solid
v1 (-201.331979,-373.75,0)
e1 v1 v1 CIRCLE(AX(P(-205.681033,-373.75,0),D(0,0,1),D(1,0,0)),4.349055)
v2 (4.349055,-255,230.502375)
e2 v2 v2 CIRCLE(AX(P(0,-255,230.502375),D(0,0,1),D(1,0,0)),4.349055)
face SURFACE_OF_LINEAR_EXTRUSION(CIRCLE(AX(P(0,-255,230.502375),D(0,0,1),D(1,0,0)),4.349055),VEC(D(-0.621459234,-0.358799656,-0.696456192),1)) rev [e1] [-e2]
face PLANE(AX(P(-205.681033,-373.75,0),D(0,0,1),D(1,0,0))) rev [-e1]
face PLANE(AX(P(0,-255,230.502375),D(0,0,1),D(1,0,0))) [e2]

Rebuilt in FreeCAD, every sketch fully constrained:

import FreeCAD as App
import Part
import Sketcher

doc = App.newDocument("Part")
body = doc.addObject("PartDesign::Body", "Body")

# Sketch on XY plane
sketch1 = body.newObject("Sketcher::SketchObject", "Sketch")
sketch1.AttachmentSupport = (doc.getObject("XY_Plane"), [""])
sketch1.MapMode = "FlatFace"
sketch1.addGeometry(Part.Circle(App.Vector(-205.681033, -373.75, 0), App.Vector(0, 0, 1), 4.349055), False)
sketch1.addConstraint([
    Sketcher.Constraint("Diameter", 0, 8.698109),
    Sketcher.Constraint("DistanceY", 0, 3, -1, 1, 373.75),
    Sketcher.Constraint("DistanceX", 0, 3, -1, 1, 205.681033),
])

# Sketch on an angled plane
sketch2 = body.newObject("Sketcher::SketchObject", "Sketch001")
sketch2.Placement = App.Placement(App.Vector(-114.507169, 0, 102.176617), App.Rotation(App.Vector(-0.665791211, 0, -0.746138099), App.Vector(0, 0.999999999, 0), App.Vector(0.746138099, 0, -0.665791211), "ZXY"))
sketch2.addGeometry(Part.LineSegment(App.Vector(-171.986604, -255, 0), App.Vector(136.940624, -373.75, 0)), False)
sketch2.addConstraint([
    Sketcher.Constraint("DistanceY", 0, 1, -1, 1, 255.0),
    Sketcher.Constraint("DistanceY", 0, 2, -1, 1, 373.75),
    Sketcher.Constraint("Distance", 0, 330.964643),
    Sketcher.Constraint("DistanceX", 0, 1, -1, 1, 171.986604),
])
doc.recompute()

additivepipe = body.newObject("PartDesign::AdditivePipe", "AdditivePipe")
additivepipe.Profile = sketch1
additivepipe.Spine = (sketch2, ["Edge1"])

doc.recompute()
